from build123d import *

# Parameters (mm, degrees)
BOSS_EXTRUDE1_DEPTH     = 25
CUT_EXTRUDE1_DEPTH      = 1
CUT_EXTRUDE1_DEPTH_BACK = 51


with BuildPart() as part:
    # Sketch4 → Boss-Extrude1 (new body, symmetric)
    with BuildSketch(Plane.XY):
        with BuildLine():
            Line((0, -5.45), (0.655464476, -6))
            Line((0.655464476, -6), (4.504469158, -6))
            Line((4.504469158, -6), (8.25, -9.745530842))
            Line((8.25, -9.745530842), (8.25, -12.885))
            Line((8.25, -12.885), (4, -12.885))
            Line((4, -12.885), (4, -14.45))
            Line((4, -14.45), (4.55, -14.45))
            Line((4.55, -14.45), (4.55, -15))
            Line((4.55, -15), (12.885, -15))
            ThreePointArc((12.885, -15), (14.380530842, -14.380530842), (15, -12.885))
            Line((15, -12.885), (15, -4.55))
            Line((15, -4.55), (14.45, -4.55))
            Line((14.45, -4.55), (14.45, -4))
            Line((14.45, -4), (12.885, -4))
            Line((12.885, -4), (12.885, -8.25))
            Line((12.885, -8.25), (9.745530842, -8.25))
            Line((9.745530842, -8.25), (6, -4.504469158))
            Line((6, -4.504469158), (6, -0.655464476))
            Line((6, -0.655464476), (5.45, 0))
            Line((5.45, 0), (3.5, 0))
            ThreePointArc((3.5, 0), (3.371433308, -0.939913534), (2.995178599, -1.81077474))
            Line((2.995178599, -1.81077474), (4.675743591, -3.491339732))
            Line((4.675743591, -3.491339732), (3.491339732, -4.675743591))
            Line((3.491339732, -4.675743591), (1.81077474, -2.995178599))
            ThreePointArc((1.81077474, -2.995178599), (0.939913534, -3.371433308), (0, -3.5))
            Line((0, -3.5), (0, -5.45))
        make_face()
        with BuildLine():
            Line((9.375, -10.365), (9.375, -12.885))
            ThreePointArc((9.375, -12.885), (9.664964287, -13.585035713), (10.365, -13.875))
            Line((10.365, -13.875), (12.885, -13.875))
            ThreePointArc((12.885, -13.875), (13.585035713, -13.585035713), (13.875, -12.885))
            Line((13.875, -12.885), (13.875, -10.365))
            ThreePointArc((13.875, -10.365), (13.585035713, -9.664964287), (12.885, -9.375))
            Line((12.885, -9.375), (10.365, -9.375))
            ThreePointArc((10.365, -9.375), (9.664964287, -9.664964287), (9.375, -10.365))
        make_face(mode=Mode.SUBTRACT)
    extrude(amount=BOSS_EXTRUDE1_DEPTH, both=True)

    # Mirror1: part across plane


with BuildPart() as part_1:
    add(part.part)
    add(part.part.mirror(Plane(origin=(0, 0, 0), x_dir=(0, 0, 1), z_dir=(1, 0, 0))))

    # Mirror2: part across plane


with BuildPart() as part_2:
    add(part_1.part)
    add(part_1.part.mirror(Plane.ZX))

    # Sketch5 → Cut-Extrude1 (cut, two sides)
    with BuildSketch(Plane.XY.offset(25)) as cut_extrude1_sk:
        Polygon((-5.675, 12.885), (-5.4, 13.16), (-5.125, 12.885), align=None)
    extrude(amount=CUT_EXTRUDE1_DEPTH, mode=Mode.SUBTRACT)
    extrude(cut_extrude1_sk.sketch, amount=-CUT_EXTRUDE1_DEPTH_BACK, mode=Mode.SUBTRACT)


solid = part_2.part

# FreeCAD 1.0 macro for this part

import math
import FreeCAD as App
import Part
import Sketcher
from FreeCAD import Vector
Q = App.Units.Quantity


def add_polygon(sketch, points):
    """Adds a closed chain of lines whose ends are joined by coincident constraints."""
    first, n = sketch.GeometryCount, len(points)
    for a, b in zip(points, points[1:] + points[:1]):
        sketch.addGeometry(Part.LineSegment(App.Vector(*a, 0), App.Vector(*b, 0)), False)
    for i in range(n):
        sketch.addConstraint(Sketcher.Constraint("Coincident", first + i, 2, first + (i + 1) % n, 1))

doc = App.newDocument("Part")
params = doc.addObject("Spreadsheet::Sheet", "Params")
for row, (alias, value) in enumerate([
    ("sketch1_radius", "3.5 mm"),
    ("sketch1_radius2", "0.99 mm"),
    ("sketch1_width", "4.25 mm"),
    ("sketch1_width2", "0.55 mm"),
    ("sketch1_width3", "1.95 mm"),
    ("pad1_length", "50 mm"),
    ("sketch2_width", "0.55 mm"),
], start=1):
    params.set(f"A{row}", alias)
    params.set(f"B{row}", "=" + value)
    params.setAlias(f"B{row}", alias)

body = doc.addObject("PartDesign::Body", "Body")

sketch1 = body.newObject("Sketcher::SketchObject", "Sketch")
sketch1.AttachmentSupport = (doc.getObject("XY_Plane"), [""])
sketch1.MapMode = "FlatFace"
sketch1.addGeometry(Part.LineSegment(Vector(0, -5.45, 0), Vector(0.655464, -6, 0)), False)
sketch1.addGeometry(Part.LineSegment(Vector(0.655464, -6, 0), Vector(4.504469, -6, 0)), False)
sketch1.addGeometry(Part.LineSegment(Vector(4.504469, -6, 0), Vector(8.25, -9.745531, 0)), False)
sketch1.addGeometry(Part.LineSegment(Vector(8.25, -9.745531, 0), Vector(8.25, -12.885, 0)), False)
sketch1.addGeometry(Part.LineSegment(Vector(8.25, -12.885, 0), Vector(4, -12.885, 0)), False)
sketch1.addGeometry(Part.LineSegment(Vector(4, -12.885, 0), Vector(4, -14.45, 0)), False)
sketch1.addGeometry(Part.LineSegment(Vector(4, -14.45, 0), Vector(4.55, -14.45, 0)), False)
sketch1.addGeometry(Part.LineSegment(Vector(4.55, -14.45, 0), Vector(4.55, -15, 0)), False)
sketch1.addGeometry(Part.LineSegment(Vector(4.55, -15, 0), Vector(12.885, -15, 0)), False)
sketch1.addGeometry(Part.ArcOfCircle(Part.Circle(Vector(12.885, -12.885, 0), Vector(0, 0, 1), 2.115), math.radians(-90), math.radians(0)), False)
sketch1.addGeometry(Part.LineSegment(Vector(15, -12.885, 0), Vector(15, -4.55, 0)), False)
sketch1.addGeometry(Part.LineSegment(Vector(15, -4.55, 0), Vector(14.45, -4.55, 0)), False)
sketch1.addGeometry(Part.LineSegment(Vector(14.45, -4.55, 0), Vector(14.45, -4, 0)), False)
sketch1.addGeometry(Part.LineSegment(Vector(14.45, -4, 0), Vector(12.885, -4, 0)), False)
sketch1.addGeometry(Part.LineSegment(Vector(12.885, -4, 0), Vector(12.885, -8.25, 0)), False)
sketch1.addGeometry(Part.LineSegment(Vector(12.885, -8.25, 0), Vector(9.745531, -8.25, 0)), False)
sketch1.addGeometry(Part.LineSegment(Vector(9.745531, -8.25, 0), Vector(6, -4.504469, 0)), False)
sketch1.addGeometry(Part.LineSegment(Vector(6, -4.504469, 0), Vector(6, -0.655464, 0)), False)
sketch1.addGeometry(Part.LineSegment(Vector(6, -0.655464, 0), Vector(5.45, 0, 0)), False)
sketch1.addGeometry(Part.LineSegment(Vector(5.45, 0, 0), Vector(3.5, 0, 0)), False)
sketch1.addGeometry(Part.ArcOfCircle(Part.Circle(Vector(0, 0, 0), Vector(0, 0, 1), 3.5), math.radians(-31.155614), math.radians(0)), False)
sketch1.addGeometry(Part.LineSegment(Vector(2.995179, -1.810775, 0), Vector(4.675744, -3.49134, 0)), False)
sketch1.addGeometry(Part.LineSegment(Vector(4.675744, -3.49134, 0), Vector(3.49134, -4.675744, 0)), False)
sketch1.addGeometry(Part.LineSegment(Vector(3.49134, -4.675744, 0), Vector(1.810775, -2.995179, 0)), False)
sketch1.addGeometry(Part.ArcOfCircle(Part.Circle(Vector(0, 0, 0), Vector(0, 0, 1), 3.5), math.radians(-90), math.radians(-58.844386)), False)
sketch1.addGeometry(Part.LineSegment(Vector(0, -3.5, 0), Vector(0, -5.45, 0)), False)
sketch1.addGeometry(Part.LineSegment(Vector(9.375, -12.885, 0), Vector(9.375, -10.365, 0)), False)
sketch1.addGeometry(Part.ArcOfCircle(Part.Circle(Vector(10.365, -10.365, 0), Vector(0, 0, 1), 0.99), math.radians(90), math.radians(180)), False)
sketch1.addGeometry(Part.LineSegment(Vector(10.365, -9.375, 0), Vector(12.885, -9.375, 0)), False)
sketch1.addGeometry(Part.ArcOfCircle(Part.Circle(Vector(12.885, -10.365, 0), Vector(0, 0, 1), 0.99), math.radians(0), math.radians(90)), False)
sketch1.addGeometry(Part.LineSegment(Vector(13.875, -10.365, 0), Vector(13.875, -12.885, 0)), False)
sketch1.addGeometry(Part.ArcOfCircle(Part.Circle(Vector(12.885, -12.885, 0), Vector(0, 0, 1), 0.99), math.radians(-90), math.radians(0)), False)
sketch1.addGeometry(Part.LineSegment(Vector(12.885, -13.875, 0), Vector(10.365, -13.875, 0)), False)
sketch1.addGeometry(Part.ArcOfCircle(Part.Circle(Vector(10.365, -12.885, 0), Vector(0, 0, 1), 0.99), math.radians(-180), math.radians(-90)), False)
sketch1.addConstraint(Sketcher.Constraint("Coincident", 0, 2, 1, 1))
sketch1.addConstraint(Sketcher.Constraint("Coincident", 1, 2, 2, 1))
sketch1.addConstraint(Sketcher.Constraint("Coincident", 2, 2, 3, 1))
sketch1.addConstraint(Sketcher.Constraint("Coincident", 3, 2, 4, 1))
sketch1.addConstraint(Sketcher.Constraint("Coincident", 4, 2, 5, 1))
sketch1.addConstraint(Sketcher.Constraint("Coincident", 5, 2, 6, 1))
sketch1.addConstraint(Sketcher.Constraint("Coincident", 6, 2, 7, 1))
sketch1.addConstraint(Sketcher.Constraint("Coincident", 7, 2, 8, 1))
sketch1.addConstraint(Sketcher.Constraint("Tangent", 8, 2, 9, 1))
sketch1.addConstraint(Sketcher.Constraint("Tangent", 9, 2, 10, 1))
sketch1.addConstraint(Sketcher.Constraint("Coincident", 10, 2, 11, 1))
sketch1.addConstraint(Sketcher.Constraint("Coincident", 11, 2, 12, 1))
sketch1.addConstraint(Sketcher.Constraint("Coincident", 12, 2, 13, 1))
sketch1.addConstraint(Sketcher.Constraint("Coincident", 13, 2, 14, 1))
sketch1.addConstraint(Sketcher.Constraint("Coincident", 14, 2, 15, 1))
sketch1.addConstraint(Sketcher.Constraint("Coincident", 15, 2, 16, 1))
sketch1.addConstraint(Sketcher.Constraint("Coincident", 16, 2, 17, 1))
sketch1.addConstraint(Sketcher.Constraint("Coincident", 17, 2, 18, 1))
sketch1.addConstraint(Sketcher.Constraint("Coincident", 18, 2, 19, 1))
sketch1.addConstraint(Sketcher.Constraint("Coincident", 19, 2, 20, 2))
sketch1.addConstraint(Sketcher.Constraint("Coincident", 20, 1, 21, 1))
sketch1.addConstraint(Sketcher.Constraint("Coincident", 21, 2, 22, 1))
sketch1.addConstraint(Sketcher.Constraint("Coincident", 22, 2, 23, 1))
sketch1.addConstraint(Sketcher.Constraint("Coincident", 23, 2, 24, 2))
sketch1.addConstraint(Sketcher.Constraint("Coincident", 24, 1, 25, 1))
sketch1.addConstraint(Sketcher.Constraint("Coincident", 25, 2, 0, 1))
sketch1.addConstraint(Sketcher.Constraint("Tangent", 26, 2, 27, 2))
sketch1.addConstraint(Sketcher.Constraint("Tangent", 27, 1, 28, 1))
sketch1.addConstraint(Sketcher.Constraint("Tangent", 28, 2, 29, 2))
sketch1.addConstraint(Sketcher.Constraint("Tangent", 29, 1, 30, 1))
sketch1.addConstraint(Sketcher.Constraint("Tangent", 30, 2, 31, 2))
sketch1.addConstraint(Sketcher.Constraint("Tangent", 31, 1, 32, 1))
sketch1.addConstraint(Sketcher.Constraint("Tangent", 32, 2, 33, 2))
sketch1.addConstraint(Sketcher.Constraint("Tangent", 33, 1, 26, 1))
sketch1.addConstraint(Sketcher.Constraint("Horizontal", 1))
sketch1.addConstraint(Sketcher.Constraint("Vertical", 3))
sketch1.addConstraint(Sketcher.Constraint("Horizontal", 4))
sketch1.addConstraint(Sketcher.Constraint("Vertical", 5))
sketch1.addConstraint(Sketcher.Constraint("Horizontal", 6))
sketch1.addConstraint(Sketcher.Constraint("Vertical", 7))
sketch1.addConstraint(Sketcher.Constraint("Horizontal", 8))
sketch1.addConstraint(Sketcher.Constraint("Vertical", 10))
sketch1.addConstraint(Sketcher.Constraint("Horizontal", 11))
sketch1.addConstraint(Sketcher.Constraint("Vertical", 12))
sketch1.addConstraint(Sketcher.Constraint("Horizontal", 13))
sketch1.addConstraint(Sketcher.Constraint("Vertical", 14))
sketch1.addConstraint(Sketcher.Constraint("Horizontal", 15))
sketch1.addConstraint(Sketcher.Constraint("Vertical", 17))
sketch1.addConstraint(Sketcher.Constraint("Horizontal", 19))
sketch1.addConstraint(Sketcher.Constraint("Vertical", 25))
sketch1.addConstraint(Sketcher.Constraint("Vertical", 26))
sketch1.addConstraint(Sketcher.Constraint("Horizontal", 28))
sketch1.addConstraint(Sketcher.Constraint("Vertical", 30))
sketch1.addConstraint(Sketcher.Constraint("Horizontal", 32))
sketch1.addConstraint(Sketcher.Constraint("Coincident", 20, 3, -1, 1))
sketch1.addConstraint(Sketcher.Constraint("Coincident", 24, 3, -1, 1))
sketch1.addConstraint(Sketcher.Constraint("Coincident", 31, 3, 9, 3))
sketch1.addConstraint(Sketcher.Constraint("Equal", 20, 24))
sketch1.addConstraint(Sketcher.Constraint("Equal", 27, 29))
sketch1.addConstraint(Sketcher.Constraint("Equal", 29, 31))
sketch1.addConstraint(Sketcher.Constraint("Equal", 31, 33))
sketch1.addConstraint(Sketcher.Constraint("PointOnObject", 18, 2, -1))
sketch1.addConstraint(Sketcher.Constraint("PointOnObject", 24, 1, -2))
sketch1.addConstraint(Sketcher.Constraint("Parallel", 2, 16))
sketch1.addConstraint(Sketcher.Constraint("Parallel", 16, 21))
sketch1.addConstraint(Sketcher.Constraint("Perpendicular", 21, 22))
sketch1.addConstraint(Sketcher.Constraint("Perpendicular", 22, 23))
sketch1.addConstraint(Sketcher.Constraint("Horizontal", 33, 3, 3, 2))
sketch1.addConstraint(Sketcher.Constraint("Vertical", 8, 2, 13, 2))
sketch1.addConstraint(Sketcher.Constraint("Equal", 6, 11))
sketch1.addConstraint(Sketcher.Constraint("Equal", 15, 3))
sketch1.addConstraint(Sketcher.Constraint("Equal", 13, 5))
sketch1.addConstraint(Sketcher.Constraint("Equal", 8, 10))
sketch1.addConstraint(Sketcher.Constraint("Equal", 7, 12))
sketch1.addConstraint(Sketcher.Constraint("Equal", 4, 14))
sketch1.addConstraint(Sketcher.Constraint("Equal", 1, 17))
sketch1.addConstraint(Sketcher.Constraint("Equal", 19, 25))
sketch1.addConstraint(Sketcher.Constraint("Equal", 32, 26))
sketch1.addConstraint(Sketcher.Constraint("Equal", 2, 16))
sketch1.addConstraint(Sketcher.Constraint("Equal", 0, 18))
sketch1.addConstraint(Sketcher.Constraint("Equal", 21, 23))
sketch1.addConstraint(Sketcher.Constraint("Radius", 20, Q("3.5 mm")))
sketch1.addConstraint(Sketcher.Constraint("Angle", 0, Q("-40 deg")))
sketch1.addConstraint(Sketcher.Constraint("Angle", 2, Q("-45 deg")))
sketch1.addConstraint(Sketcher.Constraint("Radius", 27, Q("0.99 mm")))
sketch1.addConstraint(Sketcher.Constraint("DistanceY", 0, 2, -1, 1, Q("6 mm")))
sketch1.addConstraint(Sketcher.Constraint("DistanceX", -1, 1, 4, 2, Q("4 mm")))
sketch1.addConstraint(Sketcher.Constraint("DistanceY", 7, 2, -1, 1, Q("15 mm")))
sketch1.addConstraint(Sketcher.Constraint("Radius", 9, Q("2.115 mm")))
sketch1.addConstraint(Sketcher.Constraint("DistanceX", 4, 2, 4, 1, Q("4.25 mm")))
sketch1.addConstraint(Sketcher.Constraint("DistanceX", 6, 1, 6, 2, Q("0.55 mm")))
sketch1.addConstraint(Sketcher.Constraint("DistanceX", 19, 2, 19, 1, Q("1.95 mm")))
sketch1.addConstraint(Sketcher.Constraint("DistanceX", 28, 1, 28, 2, Q("2.52 mm")))
sketch1.addConstraint(Sketcher.Constraint("Distance", 22, Q("1.675 mm")))
sketch1.addConstraint(Sketcher.Constraint("DistanceX", 15, 2, 15, 1, Q("3.139469 mm")))
sketch1.addConstraint(Sketcher.Constraint("DistanceY", 21, 2, -1, 1, Q("3.49134 mm")))
sketch1.setExpression("Constraints[81]", "Params.sketch1_radius")
sketch1.setExpression("Constraints[84]", "Params.sketch1_radius2")
sketch1.setExpression("Constraints[89]", "Params.sketch1_width")
sketch1.setExpression("Constraints[90]", "Params.sketch1_width2")
sketch1.setExpression("Constraints[91]", "Params.sketch1_width3")
pad1 = body.newObject("PartDesign::Pad", "Pad")
pad1.Profile = sketch1
pad1.setExpression("Length", "Params.pad1_length")
pad1.Midplane = True
body2 = doc.addObject("PartDesign::Body", "Body001")
doc.recompute()

body2.BaseFeature = body
doc.recompute()

mirroring = doc.addObject("Part::Mirroring", "Mirroring")
mirroring.Source = body
mirroring.Base = Vector(0, 0, 0)
mirroring.Normal = Vector(1, 0, 0)
body3 = doc.addObject("PartDesign::Body", "Body002")
body3.BaseFeature = mirroring
boolean = body2.newObject("PartDesign::Boolean", "Boolean")
boolean.Type = "Fuse"
boolean.addObjects([body3])
doc.recompute()
body4 = doc.addObject("PartDesign::Body", "Body003")
doc.recompute()

body4.BaseFeature = body2
doc.recompute()

mirroring2 = doc.addObject("Part::Mirroring", "Mirroring001")
mirroring2.Source = body2
mirroring2.Base = Vector(0, 0, 0)
mirroring2.Normal = Vector(0, 1, 0)
body5 = doc.addObject("PartDesign::Body", "Body004")
body5.BaseFeature = mirroring2
boolean2 = body4.newObject("PartDesign::Boolean", "Boolean001")
boolean2.Type = "Fuse"
boolean2.addObjects([body5])
doc.recompute()

sketch2 = body4.newObject("Sketcher::SketchObject", "Sketch001")
sketch2.AttachmentSupport = (doc.getObject("XY_Plane003"), [""])
sketch2.MapMode = "FlatFace"
sketch2.AttachmentOffset = App.Placement(Vector(0, 0, 25), App.Rotation())
add_polygon(sketch2, [(-5.4, 13.16), (-5.675, 12.885), (-5.125, 12.885)])
sketch2.addConstraint(Sketcher.Constraint("Horizontal", 1))
sketch2.addConstraint(Sketcher.Constraint("Perpendicular", 0, 2))
sketch2.addConstraint(Sketcher.Constraint("Equal", 0, 2))
sketch2.addConstraint(Sketcher.Constraint("DistanceX", 1, 1, 1, 2, Q("0.55 mm")))
sketch2.addConstraint(Sketcher.Constraint("DistanceX", 2, 2, -1, 1, Q("5.4 mm")))
sketch2.addConstraint(Sketcher.Constraint("DistanceY", -1, 1, 2, 2, Q("13.16 mm")))
sketch2.setExpression("Constraints[6]", "Params.sketch2_width")
pocket1 = body4.newObject("PartDesign::Pocket", "Pocket")
pocket1.Profile = sketch2
pocket1.Type = "ThroughAll"
pocket1.Midplane = True
mirroring.Visibility = False
mirroring2.Visibility = False

doc.recompute()
